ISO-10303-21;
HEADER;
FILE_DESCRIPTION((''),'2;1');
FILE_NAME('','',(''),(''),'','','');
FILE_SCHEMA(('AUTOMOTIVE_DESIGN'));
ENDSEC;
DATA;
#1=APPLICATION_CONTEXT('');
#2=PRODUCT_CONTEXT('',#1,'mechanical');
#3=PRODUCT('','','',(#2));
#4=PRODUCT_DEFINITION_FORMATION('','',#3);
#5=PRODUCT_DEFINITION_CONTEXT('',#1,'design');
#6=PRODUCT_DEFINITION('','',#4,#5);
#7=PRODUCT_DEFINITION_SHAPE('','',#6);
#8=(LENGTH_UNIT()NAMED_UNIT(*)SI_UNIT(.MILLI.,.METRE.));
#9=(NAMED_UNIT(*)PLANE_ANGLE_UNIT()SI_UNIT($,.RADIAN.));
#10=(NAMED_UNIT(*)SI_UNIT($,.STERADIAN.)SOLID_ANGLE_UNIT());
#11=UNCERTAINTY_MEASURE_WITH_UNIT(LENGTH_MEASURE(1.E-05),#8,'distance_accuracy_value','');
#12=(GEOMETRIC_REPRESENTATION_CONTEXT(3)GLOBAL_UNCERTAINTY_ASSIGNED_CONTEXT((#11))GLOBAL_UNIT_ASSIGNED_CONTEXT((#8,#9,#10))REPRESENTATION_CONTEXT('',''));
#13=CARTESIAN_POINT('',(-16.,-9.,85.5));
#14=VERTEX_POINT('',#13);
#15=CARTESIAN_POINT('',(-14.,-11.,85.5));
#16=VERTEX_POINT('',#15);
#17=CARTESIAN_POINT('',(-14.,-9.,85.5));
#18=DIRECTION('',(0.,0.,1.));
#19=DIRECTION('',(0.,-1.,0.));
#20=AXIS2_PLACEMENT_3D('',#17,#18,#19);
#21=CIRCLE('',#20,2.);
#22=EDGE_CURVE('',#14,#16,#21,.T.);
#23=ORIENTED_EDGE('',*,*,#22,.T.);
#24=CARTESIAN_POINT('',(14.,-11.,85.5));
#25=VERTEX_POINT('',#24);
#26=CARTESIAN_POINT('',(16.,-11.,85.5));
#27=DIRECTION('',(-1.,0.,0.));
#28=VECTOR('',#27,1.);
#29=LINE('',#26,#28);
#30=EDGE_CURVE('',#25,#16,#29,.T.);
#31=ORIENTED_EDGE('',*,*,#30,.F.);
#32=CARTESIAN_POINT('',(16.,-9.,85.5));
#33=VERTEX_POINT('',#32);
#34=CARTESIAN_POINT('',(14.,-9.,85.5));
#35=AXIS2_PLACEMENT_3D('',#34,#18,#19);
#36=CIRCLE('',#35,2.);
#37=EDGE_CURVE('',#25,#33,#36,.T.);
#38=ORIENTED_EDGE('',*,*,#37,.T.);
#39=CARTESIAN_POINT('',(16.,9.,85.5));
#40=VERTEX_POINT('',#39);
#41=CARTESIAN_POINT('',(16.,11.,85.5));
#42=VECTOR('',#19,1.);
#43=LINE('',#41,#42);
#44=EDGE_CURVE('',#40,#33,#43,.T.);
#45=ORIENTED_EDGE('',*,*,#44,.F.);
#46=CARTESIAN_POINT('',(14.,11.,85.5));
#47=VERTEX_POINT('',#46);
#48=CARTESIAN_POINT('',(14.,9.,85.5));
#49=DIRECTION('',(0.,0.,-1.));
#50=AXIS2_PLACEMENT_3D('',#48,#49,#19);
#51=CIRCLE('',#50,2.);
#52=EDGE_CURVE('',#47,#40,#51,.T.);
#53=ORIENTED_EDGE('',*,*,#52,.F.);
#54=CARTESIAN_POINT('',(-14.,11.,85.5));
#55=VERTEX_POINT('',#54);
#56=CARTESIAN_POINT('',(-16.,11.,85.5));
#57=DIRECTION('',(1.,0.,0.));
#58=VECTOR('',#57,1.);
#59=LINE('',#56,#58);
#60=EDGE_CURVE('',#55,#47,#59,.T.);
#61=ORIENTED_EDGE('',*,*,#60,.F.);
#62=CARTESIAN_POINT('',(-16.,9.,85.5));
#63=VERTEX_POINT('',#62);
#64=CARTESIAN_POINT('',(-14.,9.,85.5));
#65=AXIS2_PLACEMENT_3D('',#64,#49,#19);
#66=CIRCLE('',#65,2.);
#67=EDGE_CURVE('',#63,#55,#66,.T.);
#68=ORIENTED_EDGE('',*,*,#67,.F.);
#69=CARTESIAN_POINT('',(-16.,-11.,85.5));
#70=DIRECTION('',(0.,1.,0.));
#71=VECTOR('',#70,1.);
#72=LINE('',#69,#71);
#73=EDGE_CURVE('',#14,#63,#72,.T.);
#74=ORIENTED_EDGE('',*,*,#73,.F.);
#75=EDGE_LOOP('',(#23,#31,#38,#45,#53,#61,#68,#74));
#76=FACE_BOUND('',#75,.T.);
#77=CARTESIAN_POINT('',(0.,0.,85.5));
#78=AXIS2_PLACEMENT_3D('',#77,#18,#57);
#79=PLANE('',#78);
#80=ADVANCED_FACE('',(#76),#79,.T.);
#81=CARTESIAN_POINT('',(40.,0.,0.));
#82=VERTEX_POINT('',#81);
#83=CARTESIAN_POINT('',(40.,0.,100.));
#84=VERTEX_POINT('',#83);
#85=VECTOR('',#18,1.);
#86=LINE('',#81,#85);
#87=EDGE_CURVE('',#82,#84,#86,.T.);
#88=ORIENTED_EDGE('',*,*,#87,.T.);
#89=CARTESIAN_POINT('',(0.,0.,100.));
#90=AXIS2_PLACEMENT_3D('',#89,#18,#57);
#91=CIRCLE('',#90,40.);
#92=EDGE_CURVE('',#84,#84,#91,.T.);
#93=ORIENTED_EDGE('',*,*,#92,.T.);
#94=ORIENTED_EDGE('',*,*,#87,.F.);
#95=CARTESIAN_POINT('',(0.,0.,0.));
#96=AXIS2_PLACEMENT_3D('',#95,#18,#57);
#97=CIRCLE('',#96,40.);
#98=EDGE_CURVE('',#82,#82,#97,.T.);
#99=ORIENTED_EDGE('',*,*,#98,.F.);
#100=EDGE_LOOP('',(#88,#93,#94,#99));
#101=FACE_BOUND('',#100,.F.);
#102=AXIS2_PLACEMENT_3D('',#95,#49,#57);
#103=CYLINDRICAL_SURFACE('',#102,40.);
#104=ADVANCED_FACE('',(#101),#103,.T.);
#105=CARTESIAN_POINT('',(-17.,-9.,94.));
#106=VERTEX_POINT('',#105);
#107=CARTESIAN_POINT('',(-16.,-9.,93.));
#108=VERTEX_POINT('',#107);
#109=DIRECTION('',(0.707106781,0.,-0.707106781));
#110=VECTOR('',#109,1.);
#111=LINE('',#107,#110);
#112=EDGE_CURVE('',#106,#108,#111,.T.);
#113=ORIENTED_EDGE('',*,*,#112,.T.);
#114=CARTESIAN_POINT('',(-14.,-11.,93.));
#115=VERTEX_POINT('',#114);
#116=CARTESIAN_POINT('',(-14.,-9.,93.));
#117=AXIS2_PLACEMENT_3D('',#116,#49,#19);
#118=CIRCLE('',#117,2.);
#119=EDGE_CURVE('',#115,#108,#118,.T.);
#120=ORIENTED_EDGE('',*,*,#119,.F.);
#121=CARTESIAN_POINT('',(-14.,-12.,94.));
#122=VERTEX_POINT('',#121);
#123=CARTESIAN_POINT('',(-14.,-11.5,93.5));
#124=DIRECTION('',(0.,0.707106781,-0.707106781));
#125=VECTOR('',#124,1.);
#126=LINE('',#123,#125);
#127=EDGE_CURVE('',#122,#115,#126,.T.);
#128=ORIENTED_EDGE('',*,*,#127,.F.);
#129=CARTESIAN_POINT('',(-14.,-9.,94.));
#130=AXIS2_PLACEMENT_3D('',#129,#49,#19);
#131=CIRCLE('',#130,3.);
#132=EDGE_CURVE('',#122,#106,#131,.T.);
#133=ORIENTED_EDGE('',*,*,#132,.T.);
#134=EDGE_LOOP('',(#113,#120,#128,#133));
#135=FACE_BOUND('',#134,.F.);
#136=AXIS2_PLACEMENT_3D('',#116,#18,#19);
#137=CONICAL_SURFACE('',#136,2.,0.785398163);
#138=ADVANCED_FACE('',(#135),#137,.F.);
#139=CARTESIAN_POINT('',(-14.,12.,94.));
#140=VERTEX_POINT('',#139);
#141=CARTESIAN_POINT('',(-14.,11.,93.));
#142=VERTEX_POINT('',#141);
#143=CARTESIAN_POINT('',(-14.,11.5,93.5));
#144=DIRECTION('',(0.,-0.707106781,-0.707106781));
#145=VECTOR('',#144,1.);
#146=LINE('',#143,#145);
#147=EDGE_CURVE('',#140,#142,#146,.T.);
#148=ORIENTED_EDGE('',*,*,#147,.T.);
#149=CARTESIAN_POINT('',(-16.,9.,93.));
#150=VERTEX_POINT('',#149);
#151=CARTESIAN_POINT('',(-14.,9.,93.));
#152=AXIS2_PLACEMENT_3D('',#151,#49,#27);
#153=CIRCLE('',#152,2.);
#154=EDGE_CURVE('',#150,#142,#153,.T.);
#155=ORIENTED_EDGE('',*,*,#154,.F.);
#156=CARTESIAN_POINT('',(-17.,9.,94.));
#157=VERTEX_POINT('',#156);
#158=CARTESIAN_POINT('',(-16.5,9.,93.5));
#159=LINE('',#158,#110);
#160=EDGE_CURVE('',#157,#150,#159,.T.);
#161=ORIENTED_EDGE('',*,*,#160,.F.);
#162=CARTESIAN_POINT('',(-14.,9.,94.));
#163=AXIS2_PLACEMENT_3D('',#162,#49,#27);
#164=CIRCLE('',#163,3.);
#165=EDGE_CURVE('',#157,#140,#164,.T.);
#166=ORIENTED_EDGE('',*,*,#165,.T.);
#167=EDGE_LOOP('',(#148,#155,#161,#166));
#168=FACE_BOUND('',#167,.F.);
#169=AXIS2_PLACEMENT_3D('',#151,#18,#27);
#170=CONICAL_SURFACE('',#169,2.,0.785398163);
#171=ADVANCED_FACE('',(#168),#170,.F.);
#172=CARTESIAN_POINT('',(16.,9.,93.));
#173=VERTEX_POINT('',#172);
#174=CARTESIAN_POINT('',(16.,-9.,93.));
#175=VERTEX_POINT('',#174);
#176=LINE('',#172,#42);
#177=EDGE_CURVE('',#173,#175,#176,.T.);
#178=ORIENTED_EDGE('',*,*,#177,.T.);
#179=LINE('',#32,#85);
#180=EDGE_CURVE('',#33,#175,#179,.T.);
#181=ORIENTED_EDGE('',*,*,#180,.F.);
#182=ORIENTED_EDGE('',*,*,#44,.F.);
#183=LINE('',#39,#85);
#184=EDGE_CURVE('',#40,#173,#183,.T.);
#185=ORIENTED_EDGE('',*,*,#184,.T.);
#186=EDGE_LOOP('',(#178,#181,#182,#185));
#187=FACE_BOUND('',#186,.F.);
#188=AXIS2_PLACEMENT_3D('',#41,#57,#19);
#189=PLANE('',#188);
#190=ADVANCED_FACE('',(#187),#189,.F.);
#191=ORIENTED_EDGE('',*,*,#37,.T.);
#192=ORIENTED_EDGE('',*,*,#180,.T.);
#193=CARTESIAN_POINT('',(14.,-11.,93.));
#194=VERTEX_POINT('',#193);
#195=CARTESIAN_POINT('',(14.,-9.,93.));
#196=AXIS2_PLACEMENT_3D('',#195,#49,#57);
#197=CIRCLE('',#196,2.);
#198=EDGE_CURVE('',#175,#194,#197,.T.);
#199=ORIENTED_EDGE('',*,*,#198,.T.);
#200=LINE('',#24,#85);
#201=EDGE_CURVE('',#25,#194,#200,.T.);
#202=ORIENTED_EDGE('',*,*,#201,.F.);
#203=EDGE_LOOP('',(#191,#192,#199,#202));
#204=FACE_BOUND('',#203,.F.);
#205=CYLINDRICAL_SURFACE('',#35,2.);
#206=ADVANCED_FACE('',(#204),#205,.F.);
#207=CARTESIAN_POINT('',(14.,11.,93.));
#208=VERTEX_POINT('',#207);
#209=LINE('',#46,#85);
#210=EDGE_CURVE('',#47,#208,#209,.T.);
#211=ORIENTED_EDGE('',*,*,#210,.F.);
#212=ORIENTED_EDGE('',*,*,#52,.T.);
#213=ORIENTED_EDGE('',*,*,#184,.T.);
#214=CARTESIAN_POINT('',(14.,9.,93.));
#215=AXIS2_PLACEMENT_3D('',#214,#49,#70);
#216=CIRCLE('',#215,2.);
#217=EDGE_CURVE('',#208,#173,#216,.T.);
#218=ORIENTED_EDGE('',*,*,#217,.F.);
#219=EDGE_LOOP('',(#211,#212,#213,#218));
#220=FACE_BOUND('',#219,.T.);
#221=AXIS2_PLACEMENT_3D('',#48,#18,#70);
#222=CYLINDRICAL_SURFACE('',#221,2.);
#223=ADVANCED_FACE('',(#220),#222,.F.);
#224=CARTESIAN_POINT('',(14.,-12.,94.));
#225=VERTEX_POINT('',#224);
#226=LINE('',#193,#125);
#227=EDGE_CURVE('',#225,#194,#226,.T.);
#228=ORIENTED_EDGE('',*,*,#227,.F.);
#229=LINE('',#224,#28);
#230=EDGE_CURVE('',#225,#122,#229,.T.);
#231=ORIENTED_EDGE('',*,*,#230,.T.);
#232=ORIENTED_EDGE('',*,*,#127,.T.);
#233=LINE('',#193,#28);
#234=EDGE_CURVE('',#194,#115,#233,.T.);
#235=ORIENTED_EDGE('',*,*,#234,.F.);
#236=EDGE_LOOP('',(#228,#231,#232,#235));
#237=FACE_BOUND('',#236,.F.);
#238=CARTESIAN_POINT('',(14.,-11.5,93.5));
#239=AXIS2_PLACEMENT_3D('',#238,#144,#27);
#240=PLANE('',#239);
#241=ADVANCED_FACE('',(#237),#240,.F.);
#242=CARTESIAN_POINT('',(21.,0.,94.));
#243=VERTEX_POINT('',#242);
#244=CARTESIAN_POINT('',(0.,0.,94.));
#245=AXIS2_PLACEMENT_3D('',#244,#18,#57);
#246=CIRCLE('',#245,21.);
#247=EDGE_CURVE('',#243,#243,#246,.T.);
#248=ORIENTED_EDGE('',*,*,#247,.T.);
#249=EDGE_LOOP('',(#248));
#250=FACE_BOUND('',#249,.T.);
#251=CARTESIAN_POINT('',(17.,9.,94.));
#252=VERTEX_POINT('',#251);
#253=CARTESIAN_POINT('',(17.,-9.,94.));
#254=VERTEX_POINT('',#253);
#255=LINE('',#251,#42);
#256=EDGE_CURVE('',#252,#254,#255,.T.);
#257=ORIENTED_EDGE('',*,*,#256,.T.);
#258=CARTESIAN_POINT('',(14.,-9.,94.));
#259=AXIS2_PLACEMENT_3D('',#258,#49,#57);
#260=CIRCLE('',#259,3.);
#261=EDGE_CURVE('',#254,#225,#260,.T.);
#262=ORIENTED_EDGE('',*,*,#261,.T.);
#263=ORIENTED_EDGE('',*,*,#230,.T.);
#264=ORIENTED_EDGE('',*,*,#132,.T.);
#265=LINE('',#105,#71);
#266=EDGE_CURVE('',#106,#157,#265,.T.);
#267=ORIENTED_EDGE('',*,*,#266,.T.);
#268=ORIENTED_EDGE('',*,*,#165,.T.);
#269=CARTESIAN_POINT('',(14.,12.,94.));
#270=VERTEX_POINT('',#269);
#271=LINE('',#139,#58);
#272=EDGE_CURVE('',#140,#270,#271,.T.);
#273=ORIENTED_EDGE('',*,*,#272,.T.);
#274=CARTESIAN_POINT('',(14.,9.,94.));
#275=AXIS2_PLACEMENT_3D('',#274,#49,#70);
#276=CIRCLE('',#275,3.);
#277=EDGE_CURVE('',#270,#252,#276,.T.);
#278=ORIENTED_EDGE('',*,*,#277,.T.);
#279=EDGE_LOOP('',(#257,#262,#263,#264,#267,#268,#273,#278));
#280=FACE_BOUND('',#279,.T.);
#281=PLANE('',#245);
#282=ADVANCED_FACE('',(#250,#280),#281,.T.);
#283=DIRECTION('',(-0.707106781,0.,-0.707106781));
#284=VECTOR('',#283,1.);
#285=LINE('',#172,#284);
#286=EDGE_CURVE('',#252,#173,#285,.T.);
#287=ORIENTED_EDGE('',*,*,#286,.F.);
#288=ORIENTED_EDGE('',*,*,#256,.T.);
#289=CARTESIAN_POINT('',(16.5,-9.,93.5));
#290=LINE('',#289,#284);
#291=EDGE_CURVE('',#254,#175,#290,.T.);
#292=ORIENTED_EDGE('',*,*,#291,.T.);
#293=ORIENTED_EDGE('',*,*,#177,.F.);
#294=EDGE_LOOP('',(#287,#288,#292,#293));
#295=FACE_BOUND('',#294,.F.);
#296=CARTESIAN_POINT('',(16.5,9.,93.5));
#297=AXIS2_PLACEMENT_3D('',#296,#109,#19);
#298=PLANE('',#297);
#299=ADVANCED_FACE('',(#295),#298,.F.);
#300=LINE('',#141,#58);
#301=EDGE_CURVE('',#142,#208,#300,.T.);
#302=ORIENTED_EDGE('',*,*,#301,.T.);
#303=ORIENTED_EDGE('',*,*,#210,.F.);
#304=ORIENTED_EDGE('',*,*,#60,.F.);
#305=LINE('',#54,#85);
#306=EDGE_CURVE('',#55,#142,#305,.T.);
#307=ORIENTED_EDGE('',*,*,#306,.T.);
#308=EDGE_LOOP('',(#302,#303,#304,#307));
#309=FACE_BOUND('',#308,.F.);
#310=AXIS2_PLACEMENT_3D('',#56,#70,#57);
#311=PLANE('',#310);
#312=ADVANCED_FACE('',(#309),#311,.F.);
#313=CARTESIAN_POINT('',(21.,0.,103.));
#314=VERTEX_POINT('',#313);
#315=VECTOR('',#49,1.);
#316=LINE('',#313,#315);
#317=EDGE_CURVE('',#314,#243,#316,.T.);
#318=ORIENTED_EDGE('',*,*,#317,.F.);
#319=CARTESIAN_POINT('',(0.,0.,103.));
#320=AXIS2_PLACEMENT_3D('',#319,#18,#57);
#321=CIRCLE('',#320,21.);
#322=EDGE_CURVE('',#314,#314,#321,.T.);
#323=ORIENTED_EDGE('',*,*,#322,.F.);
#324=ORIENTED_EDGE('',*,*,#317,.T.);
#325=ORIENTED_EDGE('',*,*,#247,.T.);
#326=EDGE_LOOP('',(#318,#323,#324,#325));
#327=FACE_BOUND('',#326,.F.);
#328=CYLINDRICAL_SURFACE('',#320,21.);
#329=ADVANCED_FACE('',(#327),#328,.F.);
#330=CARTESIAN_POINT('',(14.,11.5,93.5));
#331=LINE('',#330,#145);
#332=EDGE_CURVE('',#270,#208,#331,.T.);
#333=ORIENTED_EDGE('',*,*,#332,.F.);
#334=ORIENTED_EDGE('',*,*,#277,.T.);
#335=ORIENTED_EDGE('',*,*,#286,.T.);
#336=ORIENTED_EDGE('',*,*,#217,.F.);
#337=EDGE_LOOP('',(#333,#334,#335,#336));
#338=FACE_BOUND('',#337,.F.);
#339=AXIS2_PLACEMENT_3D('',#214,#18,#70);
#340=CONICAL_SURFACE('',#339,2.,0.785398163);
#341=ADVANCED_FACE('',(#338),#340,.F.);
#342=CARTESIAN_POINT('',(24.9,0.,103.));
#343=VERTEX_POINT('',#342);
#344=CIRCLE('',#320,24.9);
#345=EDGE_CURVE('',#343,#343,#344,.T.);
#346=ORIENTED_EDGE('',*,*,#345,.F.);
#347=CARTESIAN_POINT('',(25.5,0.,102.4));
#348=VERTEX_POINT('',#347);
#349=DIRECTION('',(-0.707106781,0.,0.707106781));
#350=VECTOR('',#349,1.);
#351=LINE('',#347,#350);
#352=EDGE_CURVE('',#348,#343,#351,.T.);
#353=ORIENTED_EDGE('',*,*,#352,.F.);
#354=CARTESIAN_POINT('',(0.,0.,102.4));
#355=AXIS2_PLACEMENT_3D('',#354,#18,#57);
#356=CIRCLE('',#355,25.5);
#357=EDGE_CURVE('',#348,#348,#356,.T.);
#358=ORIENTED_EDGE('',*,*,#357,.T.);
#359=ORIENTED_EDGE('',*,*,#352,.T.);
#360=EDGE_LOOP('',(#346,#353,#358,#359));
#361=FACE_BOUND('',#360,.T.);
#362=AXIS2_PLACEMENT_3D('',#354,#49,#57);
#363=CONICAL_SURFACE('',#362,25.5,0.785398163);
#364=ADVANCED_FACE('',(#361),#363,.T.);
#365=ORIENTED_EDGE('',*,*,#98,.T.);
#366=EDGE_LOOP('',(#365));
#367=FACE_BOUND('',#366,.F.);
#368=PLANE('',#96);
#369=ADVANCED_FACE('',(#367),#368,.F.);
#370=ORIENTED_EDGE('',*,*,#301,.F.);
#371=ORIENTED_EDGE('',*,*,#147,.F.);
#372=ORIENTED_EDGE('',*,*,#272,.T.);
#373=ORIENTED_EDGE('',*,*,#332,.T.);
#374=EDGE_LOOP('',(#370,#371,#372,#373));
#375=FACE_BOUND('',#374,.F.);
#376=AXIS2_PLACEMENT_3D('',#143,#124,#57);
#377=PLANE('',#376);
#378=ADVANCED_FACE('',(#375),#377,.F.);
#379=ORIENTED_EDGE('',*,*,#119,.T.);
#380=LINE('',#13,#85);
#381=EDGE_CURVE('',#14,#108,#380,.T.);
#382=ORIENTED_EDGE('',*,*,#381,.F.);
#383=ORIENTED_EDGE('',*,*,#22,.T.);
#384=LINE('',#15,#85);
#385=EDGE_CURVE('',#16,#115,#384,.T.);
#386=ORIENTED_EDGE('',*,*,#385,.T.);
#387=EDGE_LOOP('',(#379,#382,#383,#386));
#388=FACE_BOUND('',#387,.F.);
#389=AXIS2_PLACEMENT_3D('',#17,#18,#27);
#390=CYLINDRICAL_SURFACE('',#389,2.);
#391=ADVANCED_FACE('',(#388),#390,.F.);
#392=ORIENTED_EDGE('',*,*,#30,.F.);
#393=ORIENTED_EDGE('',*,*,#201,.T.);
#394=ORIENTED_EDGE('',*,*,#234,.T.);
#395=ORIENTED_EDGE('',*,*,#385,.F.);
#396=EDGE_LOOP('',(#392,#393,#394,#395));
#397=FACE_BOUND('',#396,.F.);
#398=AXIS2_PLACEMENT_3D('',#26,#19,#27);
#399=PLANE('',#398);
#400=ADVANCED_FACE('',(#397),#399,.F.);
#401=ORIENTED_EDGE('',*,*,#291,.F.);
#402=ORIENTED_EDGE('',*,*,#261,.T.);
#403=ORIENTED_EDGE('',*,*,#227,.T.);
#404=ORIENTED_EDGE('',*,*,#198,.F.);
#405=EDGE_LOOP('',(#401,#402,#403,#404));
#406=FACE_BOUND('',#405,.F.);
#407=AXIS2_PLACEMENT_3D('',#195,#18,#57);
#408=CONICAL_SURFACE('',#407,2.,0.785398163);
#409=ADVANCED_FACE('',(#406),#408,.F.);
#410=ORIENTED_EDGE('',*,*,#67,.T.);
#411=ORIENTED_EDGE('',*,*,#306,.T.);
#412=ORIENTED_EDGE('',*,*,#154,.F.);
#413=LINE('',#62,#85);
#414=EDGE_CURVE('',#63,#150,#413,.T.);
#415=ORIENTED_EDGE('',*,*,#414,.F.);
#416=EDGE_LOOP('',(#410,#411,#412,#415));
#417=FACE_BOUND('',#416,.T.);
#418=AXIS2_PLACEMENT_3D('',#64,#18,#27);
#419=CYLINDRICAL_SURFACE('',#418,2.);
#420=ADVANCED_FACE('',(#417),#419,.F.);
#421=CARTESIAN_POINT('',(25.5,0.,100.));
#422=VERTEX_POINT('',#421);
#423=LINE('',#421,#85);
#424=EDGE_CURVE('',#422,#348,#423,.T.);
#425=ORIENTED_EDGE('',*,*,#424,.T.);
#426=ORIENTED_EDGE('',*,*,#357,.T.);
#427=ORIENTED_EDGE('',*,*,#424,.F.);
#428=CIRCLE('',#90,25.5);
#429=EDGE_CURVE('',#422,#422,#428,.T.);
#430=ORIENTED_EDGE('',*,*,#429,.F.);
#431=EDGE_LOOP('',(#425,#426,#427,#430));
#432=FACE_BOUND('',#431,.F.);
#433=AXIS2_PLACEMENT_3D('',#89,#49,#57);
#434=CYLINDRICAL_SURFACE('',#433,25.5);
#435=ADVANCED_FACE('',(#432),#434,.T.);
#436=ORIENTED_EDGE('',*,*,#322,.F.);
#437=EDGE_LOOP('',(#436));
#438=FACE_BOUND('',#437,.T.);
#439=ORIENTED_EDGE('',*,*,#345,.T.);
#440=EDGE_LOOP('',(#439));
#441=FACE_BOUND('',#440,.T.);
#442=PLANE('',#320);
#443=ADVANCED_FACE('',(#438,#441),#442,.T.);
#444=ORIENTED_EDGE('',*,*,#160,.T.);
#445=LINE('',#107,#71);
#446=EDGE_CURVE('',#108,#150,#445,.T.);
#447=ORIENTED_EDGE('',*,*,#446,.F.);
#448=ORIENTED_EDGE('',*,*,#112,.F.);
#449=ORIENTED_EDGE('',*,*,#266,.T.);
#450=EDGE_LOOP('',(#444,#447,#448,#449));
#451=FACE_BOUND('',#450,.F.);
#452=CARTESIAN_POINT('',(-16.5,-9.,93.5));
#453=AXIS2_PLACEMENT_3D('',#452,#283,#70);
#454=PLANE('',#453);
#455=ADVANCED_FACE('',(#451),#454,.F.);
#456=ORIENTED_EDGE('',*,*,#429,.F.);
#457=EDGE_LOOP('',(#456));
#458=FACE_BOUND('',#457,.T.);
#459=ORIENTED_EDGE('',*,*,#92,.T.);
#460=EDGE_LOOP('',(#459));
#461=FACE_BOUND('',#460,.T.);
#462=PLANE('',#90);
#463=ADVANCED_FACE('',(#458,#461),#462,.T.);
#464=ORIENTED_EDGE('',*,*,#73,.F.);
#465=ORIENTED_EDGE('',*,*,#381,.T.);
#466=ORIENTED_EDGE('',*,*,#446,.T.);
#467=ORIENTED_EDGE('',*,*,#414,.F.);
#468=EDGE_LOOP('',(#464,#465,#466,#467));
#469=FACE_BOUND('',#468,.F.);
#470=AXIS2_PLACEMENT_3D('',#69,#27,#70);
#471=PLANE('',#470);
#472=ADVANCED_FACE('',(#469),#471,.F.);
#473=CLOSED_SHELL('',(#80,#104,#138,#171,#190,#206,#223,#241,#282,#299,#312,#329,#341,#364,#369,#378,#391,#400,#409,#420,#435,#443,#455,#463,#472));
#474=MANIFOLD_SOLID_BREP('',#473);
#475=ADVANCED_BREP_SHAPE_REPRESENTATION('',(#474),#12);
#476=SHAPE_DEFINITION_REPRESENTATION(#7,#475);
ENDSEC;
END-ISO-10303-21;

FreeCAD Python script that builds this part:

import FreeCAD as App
import Part
import Sketcher

V = App.Vector
Q = App.Units.Quantity


def edges_at(feature, points):
    """Names of the edges that pass closest to the given points."""
    edges = feature.Shape.Edges
    near = lambda p: min(range(len(edges)), key=lambda i: edges[i].distToShape(Part.Vertex(*p))[0])
    return sorted({f"Edge{near(p) + 1}" for p in points})


def add_polygon(sketch, points):
    """Adds a closed chain of lines whose ends are joined by coincident constraints."""
    first, n = sketch.GeometryCount, len(points)
    for a, b in zip(points, points[1:] + points[:1]):
        sketch.addGeometry(Part.LineSegment(App.Vector(*a, 0), App.Vector(*b, 0)), False)
    for i in range(n):
        sketch.addConstraint(Sketcher.Constraint("Coincident", first + i, 2, first + (i + 1) % n, 1))

doc = App.newDocument("Part")
body = doc.addObject("PartDesign::Body", "Body")

# Sketch on XY plane
sketch1 = doc.addObject("Sketcher::SketchObject", "Sketch")
body.addObject(sketch1)
sketch1.AttachmentSupport = (doc.XY_Plane, [""])
sketch1.MapMode = "FlatFace"
sketch1.addGeometry(Part.Circle(V(0, 0, 0), V(0, 0, 1), 40), False)
sketch1.addConstraint(Sketcher.Constraint("Coincident", 0, 3, -1, 1))
sketch1.addConstraint(Sketcher.Constraint("Diameter", 0, Q("80 mm")))
pad1 = doc.addObject("PartDesign::Pad", "Pad")
body.addObject(pad1)
pad1.Profile = sketch1
pad1.Length = 100

# Sketch on XY plane
sketch2 = doc.addObject("Sketcher::SketchObject", "Sketch001")
body.addObject(sketch2)
sketch2.AttachmentSupport = (doc.XY_Plane, [""])
sketch2.MapMode = "FlatFace"
sketch2.AttachmentOffset = App.Placement(V(0, 0, 100), App.Rotation())
sketch2.addGeometry(Part.Circle(V(0, 0, 0), V(0, 0, 1), 26), False)
sketch2.addConstraint(Sketcher.Constraint("Coincident", 0, 3, -1, 1))
sketch2.addConstraint(Sketcher.Constraint("Diameter", 0, Q("51 mm")))
pad2 = doc.addObject("PartDesign::Pad", "Pad001")
body.addObject(pad2)
pad2.Profile = sketch2
pad2.Length = 3
doc.recompute()

chamfer = doc.addObject("PartDesign::Chamfer", "Chamfer")
body.addObject(chamfer)
chamfer.Base = (pad2, edges_at(pad2, [(-25.5, 0, 103)]))
chamfer.Size = 0.6

# Sketch on XY plane
sketch3 = doc.addObject("Sketcher::SketchObject", "Sketch002")
body.addObject(sketch3)
sketch3.AttachmentSupport = (doc.XY_Plane, [""])
sketch3.MapMode = "FlatFace"
sketch3.AttachmentOffset = App.Placement(V(0, 0, 103), App.Rotation())
sketch3.addGeometry(Part.Circle(V(0, 0, 0), V(0, 0, 1), 21), False)
sketch3.addConstraint(Sketcher.Constraint("Coincident", 0, 3, -1, 1))
sketch3.addConstraint(Sketcher.Constraint("Diameter", 0, Q("42 mm")))
pocket1 = doc.addObject("PartDesign::Pocket", "Pocket")
body.addObject(pocket1)
pocket1.Profile = sketch3
pocket1.Length = 17.5

# Sketch on XY plane
sketch4 = doc.addObject("Sketcher::SketchObject", "Sketch003")
body.addObject(sketch4)
sketch4.AttachmentSupport = (doc.XY_Plane, [""])
sketch4.MapMode = "FlatFace"
sketch4.AttachmentOffset = App.Placement(V(0, 0, 85.5), App.Rotation())
sketch4.addGeometry(Part.Circle(V(0, 0, 0), V(0, 0, 1), 21), False)  # 0
add_polygon(sketch4, [(-16, -11), (-16, 11), (16, 11), (16, -11)])  # lines 1-4
sketch4.addConstraint(Sketcher.Constraint("Vertical", 1))
sketch4.addConstraint(Sketcher.Constraint("Horizontal", 2))
sketch4.addConstraint(Sketcher.Constraint("Vertical", 3))
sketch4.addConstraint(Sketcher.Constraint("Horizontal", 4))
sketch4.addConstraint(Sketcher.Constraint("Coincident", 0, 3, -1, 1))
sketch4.addConstraint(Sketcher.Constraint("Symmetric", 1, 2, 3, 2, -1, 1))
sketch4.addConstraint(Sketcher.Constraint("DistanceX", 2, 1, 2, 2, Q("32 mm")))
sketch4.addConstraint(Sketcher.Constraint("DistanceY", 1, 1, 1, 2, Q("22 mm")))
sketch4.addConstraint(Sketcher.Constraint("Diameter", 0, Q("42 mm")))
pad3 = doc.addObject("PartDesign::Pad", "Pad002")
body.addObject(pad3)
pad3.Profile = sketch4
pad3.Length = 8.5
doc.recompute()

fillet = doc.addObject("PartDesign::Fillet", "Fillet")
body.addObject(fillet)
fillet.Base = (pad3, edges_at(pad3, [
    (-16, 11, 89.75),
    (-16, -11, 89.75),
    (16, 11, 89.75),
    (16, -11, 89.75),
]))
fillet.Radius = 2
doc.recompute()

chamfer2 = doc.addObject("PartDesign::Chamfer", "Chamfer001")
body.addObject(chamfer2)
chamfer2.Base = (fillet, edges_at(fillet, [
    (0, 11, 94),
    (16, 0, 94),
    (0, -11, 94),
    (-16, 0, 94),
]))
chamfer2.Size = 1

doc.recompute()
